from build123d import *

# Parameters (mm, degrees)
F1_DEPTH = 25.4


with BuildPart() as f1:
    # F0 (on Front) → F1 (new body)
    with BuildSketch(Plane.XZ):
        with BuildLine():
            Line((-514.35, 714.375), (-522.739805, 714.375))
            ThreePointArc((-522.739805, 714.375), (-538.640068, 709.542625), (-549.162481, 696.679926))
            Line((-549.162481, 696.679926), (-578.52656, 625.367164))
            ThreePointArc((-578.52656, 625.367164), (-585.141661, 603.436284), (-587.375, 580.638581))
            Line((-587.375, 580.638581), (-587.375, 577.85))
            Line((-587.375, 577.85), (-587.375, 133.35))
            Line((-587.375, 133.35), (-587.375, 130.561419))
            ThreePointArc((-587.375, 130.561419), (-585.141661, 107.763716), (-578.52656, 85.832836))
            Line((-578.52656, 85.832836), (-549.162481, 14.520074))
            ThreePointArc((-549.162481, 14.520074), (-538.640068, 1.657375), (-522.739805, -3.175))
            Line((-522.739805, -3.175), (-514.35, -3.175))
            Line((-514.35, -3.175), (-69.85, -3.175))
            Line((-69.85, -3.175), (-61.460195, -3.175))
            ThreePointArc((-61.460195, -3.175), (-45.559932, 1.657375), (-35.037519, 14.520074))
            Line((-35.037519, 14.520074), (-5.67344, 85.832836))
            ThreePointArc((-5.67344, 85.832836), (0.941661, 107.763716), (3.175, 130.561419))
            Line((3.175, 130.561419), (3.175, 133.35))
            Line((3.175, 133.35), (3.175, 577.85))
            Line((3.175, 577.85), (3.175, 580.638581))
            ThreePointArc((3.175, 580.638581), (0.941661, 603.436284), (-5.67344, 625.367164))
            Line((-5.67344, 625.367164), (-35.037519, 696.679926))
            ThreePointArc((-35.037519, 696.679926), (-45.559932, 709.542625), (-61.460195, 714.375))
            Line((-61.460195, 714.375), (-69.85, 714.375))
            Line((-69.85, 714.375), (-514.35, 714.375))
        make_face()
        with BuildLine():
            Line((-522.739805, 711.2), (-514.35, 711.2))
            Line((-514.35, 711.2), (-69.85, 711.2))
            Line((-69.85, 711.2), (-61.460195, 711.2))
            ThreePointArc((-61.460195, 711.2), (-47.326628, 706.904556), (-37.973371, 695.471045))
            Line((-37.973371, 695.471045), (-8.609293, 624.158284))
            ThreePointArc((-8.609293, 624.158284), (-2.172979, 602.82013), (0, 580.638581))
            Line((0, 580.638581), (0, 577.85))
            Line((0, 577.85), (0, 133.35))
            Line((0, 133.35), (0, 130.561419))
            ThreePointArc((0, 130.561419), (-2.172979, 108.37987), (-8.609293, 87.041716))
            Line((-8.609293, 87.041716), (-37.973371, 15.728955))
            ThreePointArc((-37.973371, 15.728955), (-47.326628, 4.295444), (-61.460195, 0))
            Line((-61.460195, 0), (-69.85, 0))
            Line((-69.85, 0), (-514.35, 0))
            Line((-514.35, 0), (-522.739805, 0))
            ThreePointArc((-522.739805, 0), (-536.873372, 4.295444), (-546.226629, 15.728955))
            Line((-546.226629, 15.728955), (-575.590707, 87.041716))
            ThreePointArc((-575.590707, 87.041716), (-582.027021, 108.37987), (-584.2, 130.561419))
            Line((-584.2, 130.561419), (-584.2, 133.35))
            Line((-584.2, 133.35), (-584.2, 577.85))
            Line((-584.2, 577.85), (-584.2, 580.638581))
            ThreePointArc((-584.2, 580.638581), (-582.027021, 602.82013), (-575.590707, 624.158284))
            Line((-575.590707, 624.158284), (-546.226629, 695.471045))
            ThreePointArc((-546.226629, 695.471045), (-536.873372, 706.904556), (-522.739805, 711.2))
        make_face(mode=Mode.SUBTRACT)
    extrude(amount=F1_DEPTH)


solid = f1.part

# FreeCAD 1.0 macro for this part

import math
import FreeCAD as App
import Part
import Sketcher
from FreeCAD import Vector
Q = App.Units.Quantity

doc = App.newDocument("Part")
params = doc.addObject("Spreadsheet::Sheet", "Params")
for row, (alias, value) in enumerate([
    ("sketch1_radius", "1 in"),
    ("sketch1_radius2", "1 in"),
    ("sketch1_radius3", "1 in"),
    ("sketch1_radius4", "1 in"),
    ("sketch1_radius5", "1.125 in"),
    ("pad1_length", "1 in"),
], start=1):
    params.set(f"A{row}", alias)
    params.set(f"B{row}", "=" + value)
    params.setAlias(f"B{row}", alias)

body = doc.addObject("PartDesign::Body", "Body")

# Sketch on XZ plane
sketch1 = body.newObject("Sketcher::SketchObject", "Sketch")
sketch1.AttachmentSupport = (doc.getObject("XZ_Plane"), [""])
sketch1.MapMode = "FlatFace"
sketch1.addGeometry([
    Part.ArcOfCircle(Part.Circle(Vector(-522.739804, 685.8, 0), Vector(0, 0, 1), 28.575), math.radians(90.000001), math.radians(157.619864)),  # 0
    Part.LineSegment(Vector(-549.162481, 696.679926, 0), Vector(-578.52656, 625.367164, 0)),  # 1
    Part.ArcOfCircle(Part.Circle(Vector(-469.900009, 580.638583, 0), Vector(0, 0, 1), 117.474991), math.radians(157.619865), math.radians(180.000001)),  # 2
    Part.LineSegment(Vector(-587.375, 580.638581, 0), Vector(-587.375, 130.561419, 0)),  # 3
    Part.ArcOfCircle(Part.Circle(Vector(-469.900009, 130.561417, 0), Vector(0, 0, 1), 117.474991), math.radians(179.999999), math.radians(202.380135)),  # 4
    Part.LineSegment(Vector(-578.52656, 85.832836, 0), Vector(-549.162481, 14.520074, 0)),  # 5
    Part.ArcOfCircle(Part.Circle(Vector(-522.739804, 25.4, 0), Vector(0, 0, 1), 28.575), math.radians(-157.619864), math.radians(-90.000001)),  # 6
    Part.LineSegment(Vector(-522.739805, -3.175, 0), Vector(-61.460195, -3.175, 0)),  # 7
    Part.ArcOfCircle(Part.Circle(Vector(-61.460196, 25.4, 0), Vector(0, 0, 1), 28.575), math.radians(-89.999999), math.radians(-22.380136)),  # 8
    Part.LineSegment(Vector(-35.037519, 14.520074, 0), Vector(-5.67344, 85.832836, 0)),  # 9
    Part.ArcOfCircle(Part.Circle(Vector(-114.299991, 130.561417, 0), Vector(0, 0, 1), 117.474991), math.radians(-22.380135), math.radians(0.000001)),  # 10
    Part.LineSegment(Vector(3.175, 130.561419, 0), Vector(3.175, 580.638581, 0)),  # 11
    Part.ArcOfCircle(Part.Circle(Vector(-114.299991, 580.638583, 0), Vector(0, 0, 1), 117.474991), math.radians(-0.000001), math.radians(22.380135)),  # 12
    Part.LineSegment(Vector(-5.67344, 625.367164, 0), Vector(-35.037519, 696.679926, 0)),  # 13
    Part.ArcOfCircle(Part.Circle(Vector(-61.460196, 685.8, 0), Vector(0, 0, 1), 28.575), math.radians(22.380136), math.radians(89.999999)),  # 14
    Part.LineSegment(Vector(-61.460195, 714.375, 0), Vector(-522.739805, 714.375, 0)),  # 15
    Part.ArcOfCircle(Part.Circle(Vector(-522.739805, 685.799999, 0), Vector(0, 0, 1), 25.400001), math.radians(90.000001), math.radians(157.619864)),  # 16
    Part.LineSegment(Vector(-522.739805, 711.2, 0), Vector(-61.460195, 711.2, 0)),  # 17
    Part.ArcOfCircle(Part.Circle(Vector(-61.460195, 685.799999, 0), Vector(0, 0, 1), 25.400001), math.radians(22.380136), math.radians(89.999999)),  # 18
    Part.LineSegment(Vector(-37.973371, 695.471045, 0), Vector(-8.609293, 624.158284, 0)),  # 19
    Part.ArcOfCircle(Part.Circle(Vector(-114.300021, 580.638578, 0), Vector(0, 0, 1), 114.300021), math.radians(0.000002), math.radians(22.380132)),  # 20
    Part.LineSegment(Vector(0, 580.638581, 0), Vector(0, 130.561419, 0)),  # 21
    Part.ArcOfCircle(Part.Circle(Vector(-114.300021, 130.561422, 0), Vector(0, 0, 1), 114.300021), math.radians(-22.380132), math.radians(-0.000002)),  # 22
    Part.LineSegment(Vector(-8.609293, 87.041716, 0), Vector(-37.973371, 15.728955, 0)),  # 23
    Part.ArcOfCircle(Part.Circle(Vector(-61.460195, 25.400001, 0), Vector(0, 0, 1), 25.400001), math.radians(-89.999999), math.radians(-22.380136)),  # 24
    Part.LineSegment(Vector(-61.460195, 0, 0), Vector(-522.739805, 0, 0)),  # 25
    Part.ArcOfCircle(Part.Circle(Vector(-522.739805, 25.400001, 0), Vector(0, 0, 1), 25.400001), math.radians(-157.619864), math.radians(-90.000001)),  # 26
    Part.LineSegment(Vector(-546.226629, 15.728955, 0), Vector(-575.590707, 87.041716, 0)),  # 27
    Part.ArcOfCircle(Part.Circle(Vector(-469.899979, 130.561422, 0), Vector(0, 0, 1), 114.300021), math.radians(-179.999998), math.radians(-157.619868)),  # 28
    Part.LineSegment(Vector(-584.2, 130.561419, 0), Vector(-584.2, 580.638581, 0)),  # 29
    Part.ArcOfCircle(Part.Circle(Vector(-469.899979, 580.638578, 0), Vector(0, 0, 1), 114.300021), math.radians(157.619868), math.radians(179.999998)),  # 30
    Part.LineSegment(Vector(-575.590707, 624.158284, 0), Vector(-546.226629, 695.471045, 0)),  # 31
], False)
sketch1.addConstraint([
    Sketcher.Constraint("Coincident", 0, 2, 1, 1),
    Sketcher.Constraint("Coincident", 1, 2, 2, 1),
    Sketcher.Constraint("Coincident", 2, 2, 3, 1),
    Sketcher.Constraint("Coincident", 3, 2, 4, 1),
    Sketcher.Constraint("Coincident", 4, 2, 5, 1),
    Sketcher.Constraint("Coincident", 5, 2, 6, 1),
    Sketcher.Constraint("Coincident", 6, 2, 7, 1),
    Sketcher.Constraint("Coincident", 7, 2, 8, 1),
    Sketcher.Constraint("Coincident", 8, 2, 9, 1),
    Sketcher.Constraint("Coincident", 9, 2, 10, 1),
    Sketcher.Constraint("Coincident", 10, 2, 11, 1),
    Sketcher.Constraint("Coincident", 11, 2, 12, 1),
    Sketcher.Constraint("Coincident", 12, 2, 13, 1),
    Sketcher.Constraint("Coincident", 13, 2, 14, 1),
    Sketcher.Constraint("Coincident", 14, 2, 15, 1),
    Sketcher.Constraint("Coincident", 15, 2, 0, 1),
    Sketcher.Constraint("Coincident", 16, 1, 17, 1),
    Sketcher.Constraint("Coincident", 17, 2, 18, 2),
    Sketcher.Constraint("Coincident", 18, 1, 19, 1),
    Sketcher.Constraint("Coincident", 19, 2, 20, 2),
    Sketcher.Constraint("Coincident", 20, 1, 21, 1),
    Sketcher.Constraint("Coincident", 21, 2, 22, 2),
    Sketcher.Constraint("Coincident", 22, 1, 23, 1),
    Sketcher.Constraint("Coincident", 23, 2, 24, 2),
    Sketcher.Constraint("Coincident", 24, 1, 25, 1),
    Sketcher.Constraint("Coincident", 25, 2, 26, 2),
    Sketcher.Constraint("Coincident", 26, 1, 27, 1),
    Sketcher.Constraint("Coincident", 27, 2, 28, 2),
    Sketcher.Constraint("Coincident", 28, 1, 29, 1),
    Sketcher.Constraint("Coincident", 29, 2, 30, 2),
    Sketcher.Constraint("Coincident", 30, 1, 31, 1),
    Sketcher.Constraint("Coincident", 31, 2, 16, 2),
    Sketcher.Constraint("Vertical", 3),
    Sketcher.Constraint("Horizontal", 7),
    Sketcher.Constraint("Vertical", 11),
    Sketcher.Constraint("Horizontal", 15),
    Sketcher.Constraint("Horizontal", 17),
    Sketcher.Constraint("Vertical", 21),
    Sketcher.Constraint("Horizontal", 25),
    Sketcher.Constraint("Vertical", 29),
    Sketcher.Constraint("Coincident", 16, 3, 0, 3),
    Sketcher.Constraint("Coincident", 18, 3, 14, 3),
    Sketcher.Constraint("Coincident", 24, 3, 8, 3),
    Sketcher.Constraint("Coincident", 26, 3, 6, 3),
    Sketcher.Constraint("PointOnObject", 20, 1, -2),
    Sketcher.Constraint("PointOnObject", 24, 1, -1),
    Sketcher.Constraint("Radius", 16, Q("1 in")),
    Sketcher.Constraint("Radius", 18, Q("1 in")),
    Sketcher.Constraint("Radius", 24, Q("1 in")),
    Sketcher.Constraint("Radius", 26, Q("1 in")),
    Sketcher.Constraint("DistanceY", -1, 1, 0, 3, Q("27 in")),
    Sketcher.Constraint("DistanceX", 28, 1, -1, 1, Q("23 in")),
    Sketcher.Constraint("Radius", 0, Q("1.125 in")),
    Sketcher.Constraint("Radius", 6, Q("1.125 in")),
    Sketcher.Constraint("DistanceX", 2, 2, -1, 1, Q("23.125 in")),
    Sketcher.Constraint("DistanceX", -1, 1, 10, 2, Q("0.125 in")),
    Sketcher.Constraint("Radius", 2, 117.474991),
    Sketcher.Constraint("Radius", 4, 117.474991),
    Sketcher.Constraint("Radius", 10, 117.474991),
    Sketcher.Constraint("Radius", 12, 117.474991),
    Sketcher.Constraint("Radius", 20, 114.300021),
    Sketcher.Constraint("Radius", 22, 114.300021),
    Sketcher.Constraint("Radius", 28, 114.300021),
    Sketcher.Constraint("Radius", 30, 114.300021),
    Sketcher.Constraint("DistanceX", 7, 1, 7, 2, 461.27961),
    Sketcher.Constraint("DistanceX", 15, 2, 15, 1, 461.27961),
    Sketcher.Constraint("DistanceX", 17, 1, 17, 2, 461.27961),
    Sketcher.Constraint("DistanceX", 25, 2, 25, 1, 461.27961),
    Sketcher.Constraint("DistanceY", 3, 2, 3, 1, 450.077162),
    Sketcher.Constraint("DistanceY", 11, 1, 11, 2, 450.077162),
    Sketcher.Constraint("DistanceY", 21, 2, 21, 1, 450.077162),
    Sketcher.Constraint("DistanceY", 29, 1, 29, 2, 450.077162),
    Sketcher.Constraint("DistanceX", 0, 2, -1, 1, 549.162481),
    Sketcher.Constraint("DistanceX", 1, 2, -1, 1, 578.52656),
    Sketcher.Constraint("DistanceY", -1, 1, 2, 2, 580.638581),
    Sketcher.Constraint("DistanceX", 4, 2, -1, 1, 578.52656),
    Sketcher.Constraint("DistanceX", 5, 2, -1, 1, 549.162481),
    Sketcher.Constraint("DistanceX", 8, 2, -1, 1, 35.037519),
    Sketcher.Constraint("DistanceX", 9, 2, -1, 1, 5.67344),
    Sketcher.Constraint("DistanceY", -1, 1, 10, 2, 130.561419),
    Sketcher.Constraint("DistanceX", 12, 2, -1, 1, 5.67344),
    Sketcher.Constraint("DistanceX", 13, 2, -1, 1, 35.037519),
    Sketcher.Constraint("DistanceX", 18, 1, -1, 1, 37.973371),
    Sketcher.Constraint("DistanceY", -1, 1, 20, 1, 580.638581),
    Sketcher.Constraint("DistanceX", 23, 2, -1, 1, 37.973371),
    Sketcher.Constraint("DistanceX", 26, 1, -1, 1, 546.226629),
    Sketcher.Constraint("DistanceY", -1, 1, 28, 1, 130.561419),
    Sketcher.Constraint("DistanceX", 31, 2, -1, 1, 546.226629),
    Sketcher.Constraint("DistanceX", 6, 3, 8, 3, 461.279609),
    Sketcher.Constraint("DistanceX", 0, 3, 8, 3, 461.279609),
    Sketcher.Constraint("DistanceX", 0, 3, 14, 3, 461.279609),
    Sketcher.Constraint("DistanceY", 20, 3, 18, 3, 105.161421),
    Sketcher.Constraint("DistanceY", 8, 3, 22, 3, 105.161422),
    Sketcher.Constraint("DistanceY", 26, 3, 28, 3, 105.161421),
    Sketcher.Constraint("DistanceY", 30, 3, 16, 3, 105.161421),
    Sketcher.Constraint("DistanceY", 30, 3, 0, 2, 116.041348),
    Sketcher.Constraint("DistanceY", 1, 2, 0, 2, 71.312762),
    Sketcher.Constraint("DistanceY", 5, 2, 4, 2, 71.312762),
    Sketcher.Constraint("DistanceY", 8, 2, 9, 2, 71.312762),
    Sketcher.Constraint("DistanceY", 12, 2, 13, 2, 71.312762),
    Sketcher.Constraint("DistanceY", 19, 2, 12, 2, 1.20888),
    Sketcher.Constraint("DistanceY", 9, 2, 22, 1, 1.20888),
    Sketcher.Constraint("DistanceY", 4, 2, 27, 2, 1.20888),
    Sketcher.Constraint("DistanceY", 30, 1, 1, 2, 1.20888),
    Sketcher.Constraint("DistanceX", 6, 2, -1, 1, 522.739805),
    Sketcher.Constraint("DistanceX", 14, 2, -1, 1, 61.460195),
    Sketcher.Constraint("DistanceX", 16, 1, -1, 1, 522.739805),
    Sketcher.Constraint("DistanceX", 24, 1, -1, 1, 61.460195),
])
sketch1.setExpression("Constraints[46]", "Params.sketch1_radius")
sketch1.setExpression("Constraints[47]", "Params.sketch1_radius2")
sketch1.setExpression("Constraints[48]", "Params.sketch1_radius3")
sketch1.setExpression("Constraints[49]", "Params.sketch1_radius4")
sketch1.setExpression("Constraints[52]", "Params.sketch1_radius5")
pad1 = body.newObject("PartDesign::Pad", "Pad")
pad1.Profile = sketch1
pad1.setExpression("Length", "Params.pad1_length")

doc.recompute()
